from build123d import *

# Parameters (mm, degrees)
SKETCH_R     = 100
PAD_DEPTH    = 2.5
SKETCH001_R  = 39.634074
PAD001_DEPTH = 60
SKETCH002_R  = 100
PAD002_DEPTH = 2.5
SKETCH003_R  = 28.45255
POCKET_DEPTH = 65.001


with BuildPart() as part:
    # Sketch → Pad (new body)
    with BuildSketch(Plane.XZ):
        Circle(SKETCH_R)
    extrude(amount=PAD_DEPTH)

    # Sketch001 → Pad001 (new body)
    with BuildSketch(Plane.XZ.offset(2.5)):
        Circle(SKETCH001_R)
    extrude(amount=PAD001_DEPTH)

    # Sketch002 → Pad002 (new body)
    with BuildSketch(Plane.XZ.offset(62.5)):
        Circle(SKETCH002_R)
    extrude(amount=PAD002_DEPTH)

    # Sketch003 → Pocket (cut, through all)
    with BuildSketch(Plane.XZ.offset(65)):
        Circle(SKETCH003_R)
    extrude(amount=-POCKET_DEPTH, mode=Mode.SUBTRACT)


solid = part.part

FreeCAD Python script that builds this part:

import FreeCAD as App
import Part
import Sketcher

V = App.Vector
Q = App.Units.Quantity

doc = App.newDocument("Part")
body = doc.addObject("PartDesign::Body", "Body")

sketch1 = body.newObject("Sketcher::SketchObject", "Sketch")
sketch1.AttachmentSupport = (doc.getObject("XZ_Plane"), [""])
sketch1.MapMode = "FlatFace"
sketch1.addGeometry(Part.Circle(V(0, 0, 0), V(0, 0, 1), 100), False)
sketch1.addConstraint(Sketcher.Constraint("Coincident", 0, 3, -1, 1))
sketch1.addConstraint(Sketcher.Constraint("Diameter", 0, Q("200 mm")))
pad1 = body.newObject("PartDesign::Pad", "Pad")
pad1.Profile = sketch1
pad1.Length = 2.5

sketch2 = body.newObject("Sketcher::SketchObject", "Sketch001")
sketch2.AttachmentSupport = (doc.getObject("XZ_Plane"), [""])
sketch2.MapMode = "FlatFace"
sketch2.AttachmentOffset = App.Placement(V(0, 0, 2.5), App.Rotation())
sketch2.addGeometry(Part.Circle(V(0, 0, 0), V(0, 0, 1), 39.634074), False)
sketch2.addConstraint(Sketcher.Constraint("Coincident", 0, 3, -1, 1))
sketch2.addConstraint(Sketcher.Constraint("Diameter", 0, Q("79.268148 mm")))
pad2 = body.newObject("PartDesign::Pad", "Pad001")
pad2.Profile = sketch2
pad2.Length = 60

sketch3 = body.newObject("Sketcher::SketchObject", "Sketch002")
sketch3.AttachmentSupport = (doc.getObject("XZ_Plane"), [""])
sketch3.MapMode = "FlatFace"
sketch3.AttachmentOffset = App.Placement(V(0, 0, 62.5), App.Rotation())
sketch3.addGeometry(Part.Circle(V(0, 0, 0), V(0, 0, 1), 100), False)
sketch3.addConstraint(Sketcher.Constraint("Coincident", 0, 3, -1, 1))
sketch3.addConstraint(Sketcher.Constraint("Diameter", 0, Q("200 mm")))
pad3 = body.newObject("PartDesign::Pad", "Pad002")
pad3.Profile = sketch3
pad3.Length = 2.5

sketch4 = body.newObject("Sketcher::SketchObject", "Sketch003")
sketch4.AttachmentSupport = (doc.getObject("XZ_Plane"), [""])
sketch4.MapMode = "FlatFace"
sketch4.AttachmentOffset = App.Placement(V(0, 0, 65), App.Rotation())
sketch4.addGeometry(Part.Circle(V(0, 0, 0), V(0, 0, 1), 28.45255), False)
sketch4.addConstraint(Sketcher.Constraint("Coincident", 0, 3, -1, 1))
sketch4.addConstraint(Sketcher.Constraint("Diameter", 0, Q("56.9051 mm")))
pocket1 = body.newObject("PartDesign::Pocket", "Pocket")
pocket1.Profile = sketch4
pocket1.Type = "ThroughAll"

doc.recompute()
